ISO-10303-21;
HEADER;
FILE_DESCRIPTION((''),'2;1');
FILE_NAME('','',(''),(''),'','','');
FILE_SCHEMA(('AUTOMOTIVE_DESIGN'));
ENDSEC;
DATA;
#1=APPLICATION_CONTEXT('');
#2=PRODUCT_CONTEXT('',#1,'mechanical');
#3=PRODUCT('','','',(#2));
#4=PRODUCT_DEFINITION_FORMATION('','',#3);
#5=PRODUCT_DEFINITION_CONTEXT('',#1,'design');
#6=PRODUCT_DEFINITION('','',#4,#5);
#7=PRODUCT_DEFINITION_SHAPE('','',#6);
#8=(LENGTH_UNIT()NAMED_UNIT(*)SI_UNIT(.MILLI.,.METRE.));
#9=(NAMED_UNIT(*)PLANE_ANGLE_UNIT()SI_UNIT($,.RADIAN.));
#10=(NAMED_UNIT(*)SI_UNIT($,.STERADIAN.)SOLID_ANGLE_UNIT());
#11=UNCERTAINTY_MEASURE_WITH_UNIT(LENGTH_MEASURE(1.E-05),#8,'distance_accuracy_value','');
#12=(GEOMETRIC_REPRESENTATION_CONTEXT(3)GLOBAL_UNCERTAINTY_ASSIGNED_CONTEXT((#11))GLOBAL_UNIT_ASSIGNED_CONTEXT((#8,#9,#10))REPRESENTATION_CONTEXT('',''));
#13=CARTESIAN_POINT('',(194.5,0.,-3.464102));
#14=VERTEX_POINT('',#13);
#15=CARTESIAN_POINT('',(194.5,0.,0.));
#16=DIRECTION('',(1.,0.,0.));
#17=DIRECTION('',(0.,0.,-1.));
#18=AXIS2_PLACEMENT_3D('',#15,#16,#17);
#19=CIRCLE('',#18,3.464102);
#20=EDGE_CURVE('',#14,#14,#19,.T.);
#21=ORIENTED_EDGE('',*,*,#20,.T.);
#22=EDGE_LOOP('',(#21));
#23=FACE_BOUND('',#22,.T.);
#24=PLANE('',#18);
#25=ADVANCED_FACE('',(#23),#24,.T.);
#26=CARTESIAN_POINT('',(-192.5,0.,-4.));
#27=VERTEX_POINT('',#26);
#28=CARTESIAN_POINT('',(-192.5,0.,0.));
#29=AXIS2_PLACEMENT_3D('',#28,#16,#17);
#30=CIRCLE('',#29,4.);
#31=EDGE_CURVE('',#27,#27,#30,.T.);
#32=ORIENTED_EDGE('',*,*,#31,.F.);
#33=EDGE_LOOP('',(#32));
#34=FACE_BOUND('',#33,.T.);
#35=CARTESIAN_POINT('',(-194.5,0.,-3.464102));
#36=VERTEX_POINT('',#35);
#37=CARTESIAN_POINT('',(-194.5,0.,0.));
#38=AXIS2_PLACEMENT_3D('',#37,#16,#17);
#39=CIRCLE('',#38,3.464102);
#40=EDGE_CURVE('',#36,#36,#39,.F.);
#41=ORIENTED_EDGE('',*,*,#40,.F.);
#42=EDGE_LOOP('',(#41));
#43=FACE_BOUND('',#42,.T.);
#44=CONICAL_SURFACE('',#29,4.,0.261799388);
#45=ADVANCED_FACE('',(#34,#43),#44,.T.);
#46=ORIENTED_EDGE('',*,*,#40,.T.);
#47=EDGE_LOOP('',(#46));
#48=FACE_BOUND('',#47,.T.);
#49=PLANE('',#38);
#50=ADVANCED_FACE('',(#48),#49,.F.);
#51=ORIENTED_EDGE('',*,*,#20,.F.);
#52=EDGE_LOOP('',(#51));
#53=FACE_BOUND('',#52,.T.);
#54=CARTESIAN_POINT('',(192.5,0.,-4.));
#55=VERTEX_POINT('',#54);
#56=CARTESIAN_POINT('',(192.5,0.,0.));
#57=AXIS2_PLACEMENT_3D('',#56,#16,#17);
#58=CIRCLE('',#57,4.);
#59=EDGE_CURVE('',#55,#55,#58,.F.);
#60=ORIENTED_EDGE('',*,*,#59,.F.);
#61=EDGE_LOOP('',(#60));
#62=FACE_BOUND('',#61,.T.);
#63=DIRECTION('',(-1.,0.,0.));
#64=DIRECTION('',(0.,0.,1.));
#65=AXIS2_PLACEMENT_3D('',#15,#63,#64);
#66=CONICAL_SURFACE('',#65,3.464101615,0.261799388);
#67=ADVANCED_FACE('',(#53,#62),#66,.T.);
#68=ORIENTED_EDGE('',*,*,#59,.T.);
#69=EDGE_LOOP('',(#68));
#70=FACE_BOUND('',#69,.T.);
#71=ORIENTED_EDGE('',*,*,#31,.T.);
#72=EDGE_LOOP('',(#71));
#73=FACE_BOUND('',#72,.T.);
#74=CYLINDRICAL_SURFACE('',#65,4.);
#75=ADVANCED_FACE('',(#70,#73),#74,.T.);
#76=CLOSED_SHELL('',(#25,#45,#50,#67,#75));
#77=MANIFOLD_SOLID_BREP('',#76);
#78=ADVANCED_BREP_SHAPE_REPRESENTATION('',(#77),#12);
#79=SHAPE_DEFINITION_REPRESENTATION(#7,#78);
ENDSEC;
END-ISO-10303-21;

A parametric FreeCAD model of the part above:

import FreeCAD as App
import Part
import Sketcher
from FreeCAD import Vector


def edges_at(feature, points):
    """Names of the edges that pass closest to the given points."""
    edges = feature.Shape.Edges
    near = lambda p: min(range(len(edges)), key=lambda i: edges[i].distToShape(Part.Vertex(*p))[0])
    return sorted({f"Edge{near(p) + 1}" for p in points})

doc = App.newDocument("Part")
body = doc.addObject("PartDesign::Body", "Body")

# Sketch on YZ plane
sketch1 = doc.addObject("Sketcher::SketchObject", "Sketch")
body.addObject(sketch1)
sketch1.AttachmentSupport = (doc.YZ_Plane, [""])
sketch1.MapMode = "FlatFace"
sketch1.addGeometry(Part.Circle(Vector(0, 0, 0), Vector(0, 0, 1), 4), False)
sketch1.addConstraint([
    Sketcher.Constraint("Coincident", 0, 3, -1, 1),
    Sketcher.Constraint("Diameter", 0, 8.0),
])
pad1 = doc.addObject("PartDesign::Pad", "Pad")
body.addObject(pad1)
pad1.Profile = sketch1
pad1.Length = 389
pad1.Midplane = True
doc.recompute()

chamfer = doc.addObject("PartDesign::Chamfer", "Chamfer")
body.addObject(chamfer)
chamfer.Base = (pad1, edges_at(pad1, [(194.5, 0, 4)]))
chamfer.ChamferType = "Two distances"
chamfer.Size = 2
chamfer.Size2 = 0.535898
doc.recompute()

chamfer2 = doc.addObject("PartDesign::Chamfer", "Chamfer001")
body.addObject(chamfer2)
chamfer2.Base = (chamfer, edges_at(chamfer, [(-194.5, 0, 4)]))
chamfer2.ChamferType = "Two distances"
chamfer2.Size = 2
chamfer2.Size2 = 0.535898

doc.recompute()
